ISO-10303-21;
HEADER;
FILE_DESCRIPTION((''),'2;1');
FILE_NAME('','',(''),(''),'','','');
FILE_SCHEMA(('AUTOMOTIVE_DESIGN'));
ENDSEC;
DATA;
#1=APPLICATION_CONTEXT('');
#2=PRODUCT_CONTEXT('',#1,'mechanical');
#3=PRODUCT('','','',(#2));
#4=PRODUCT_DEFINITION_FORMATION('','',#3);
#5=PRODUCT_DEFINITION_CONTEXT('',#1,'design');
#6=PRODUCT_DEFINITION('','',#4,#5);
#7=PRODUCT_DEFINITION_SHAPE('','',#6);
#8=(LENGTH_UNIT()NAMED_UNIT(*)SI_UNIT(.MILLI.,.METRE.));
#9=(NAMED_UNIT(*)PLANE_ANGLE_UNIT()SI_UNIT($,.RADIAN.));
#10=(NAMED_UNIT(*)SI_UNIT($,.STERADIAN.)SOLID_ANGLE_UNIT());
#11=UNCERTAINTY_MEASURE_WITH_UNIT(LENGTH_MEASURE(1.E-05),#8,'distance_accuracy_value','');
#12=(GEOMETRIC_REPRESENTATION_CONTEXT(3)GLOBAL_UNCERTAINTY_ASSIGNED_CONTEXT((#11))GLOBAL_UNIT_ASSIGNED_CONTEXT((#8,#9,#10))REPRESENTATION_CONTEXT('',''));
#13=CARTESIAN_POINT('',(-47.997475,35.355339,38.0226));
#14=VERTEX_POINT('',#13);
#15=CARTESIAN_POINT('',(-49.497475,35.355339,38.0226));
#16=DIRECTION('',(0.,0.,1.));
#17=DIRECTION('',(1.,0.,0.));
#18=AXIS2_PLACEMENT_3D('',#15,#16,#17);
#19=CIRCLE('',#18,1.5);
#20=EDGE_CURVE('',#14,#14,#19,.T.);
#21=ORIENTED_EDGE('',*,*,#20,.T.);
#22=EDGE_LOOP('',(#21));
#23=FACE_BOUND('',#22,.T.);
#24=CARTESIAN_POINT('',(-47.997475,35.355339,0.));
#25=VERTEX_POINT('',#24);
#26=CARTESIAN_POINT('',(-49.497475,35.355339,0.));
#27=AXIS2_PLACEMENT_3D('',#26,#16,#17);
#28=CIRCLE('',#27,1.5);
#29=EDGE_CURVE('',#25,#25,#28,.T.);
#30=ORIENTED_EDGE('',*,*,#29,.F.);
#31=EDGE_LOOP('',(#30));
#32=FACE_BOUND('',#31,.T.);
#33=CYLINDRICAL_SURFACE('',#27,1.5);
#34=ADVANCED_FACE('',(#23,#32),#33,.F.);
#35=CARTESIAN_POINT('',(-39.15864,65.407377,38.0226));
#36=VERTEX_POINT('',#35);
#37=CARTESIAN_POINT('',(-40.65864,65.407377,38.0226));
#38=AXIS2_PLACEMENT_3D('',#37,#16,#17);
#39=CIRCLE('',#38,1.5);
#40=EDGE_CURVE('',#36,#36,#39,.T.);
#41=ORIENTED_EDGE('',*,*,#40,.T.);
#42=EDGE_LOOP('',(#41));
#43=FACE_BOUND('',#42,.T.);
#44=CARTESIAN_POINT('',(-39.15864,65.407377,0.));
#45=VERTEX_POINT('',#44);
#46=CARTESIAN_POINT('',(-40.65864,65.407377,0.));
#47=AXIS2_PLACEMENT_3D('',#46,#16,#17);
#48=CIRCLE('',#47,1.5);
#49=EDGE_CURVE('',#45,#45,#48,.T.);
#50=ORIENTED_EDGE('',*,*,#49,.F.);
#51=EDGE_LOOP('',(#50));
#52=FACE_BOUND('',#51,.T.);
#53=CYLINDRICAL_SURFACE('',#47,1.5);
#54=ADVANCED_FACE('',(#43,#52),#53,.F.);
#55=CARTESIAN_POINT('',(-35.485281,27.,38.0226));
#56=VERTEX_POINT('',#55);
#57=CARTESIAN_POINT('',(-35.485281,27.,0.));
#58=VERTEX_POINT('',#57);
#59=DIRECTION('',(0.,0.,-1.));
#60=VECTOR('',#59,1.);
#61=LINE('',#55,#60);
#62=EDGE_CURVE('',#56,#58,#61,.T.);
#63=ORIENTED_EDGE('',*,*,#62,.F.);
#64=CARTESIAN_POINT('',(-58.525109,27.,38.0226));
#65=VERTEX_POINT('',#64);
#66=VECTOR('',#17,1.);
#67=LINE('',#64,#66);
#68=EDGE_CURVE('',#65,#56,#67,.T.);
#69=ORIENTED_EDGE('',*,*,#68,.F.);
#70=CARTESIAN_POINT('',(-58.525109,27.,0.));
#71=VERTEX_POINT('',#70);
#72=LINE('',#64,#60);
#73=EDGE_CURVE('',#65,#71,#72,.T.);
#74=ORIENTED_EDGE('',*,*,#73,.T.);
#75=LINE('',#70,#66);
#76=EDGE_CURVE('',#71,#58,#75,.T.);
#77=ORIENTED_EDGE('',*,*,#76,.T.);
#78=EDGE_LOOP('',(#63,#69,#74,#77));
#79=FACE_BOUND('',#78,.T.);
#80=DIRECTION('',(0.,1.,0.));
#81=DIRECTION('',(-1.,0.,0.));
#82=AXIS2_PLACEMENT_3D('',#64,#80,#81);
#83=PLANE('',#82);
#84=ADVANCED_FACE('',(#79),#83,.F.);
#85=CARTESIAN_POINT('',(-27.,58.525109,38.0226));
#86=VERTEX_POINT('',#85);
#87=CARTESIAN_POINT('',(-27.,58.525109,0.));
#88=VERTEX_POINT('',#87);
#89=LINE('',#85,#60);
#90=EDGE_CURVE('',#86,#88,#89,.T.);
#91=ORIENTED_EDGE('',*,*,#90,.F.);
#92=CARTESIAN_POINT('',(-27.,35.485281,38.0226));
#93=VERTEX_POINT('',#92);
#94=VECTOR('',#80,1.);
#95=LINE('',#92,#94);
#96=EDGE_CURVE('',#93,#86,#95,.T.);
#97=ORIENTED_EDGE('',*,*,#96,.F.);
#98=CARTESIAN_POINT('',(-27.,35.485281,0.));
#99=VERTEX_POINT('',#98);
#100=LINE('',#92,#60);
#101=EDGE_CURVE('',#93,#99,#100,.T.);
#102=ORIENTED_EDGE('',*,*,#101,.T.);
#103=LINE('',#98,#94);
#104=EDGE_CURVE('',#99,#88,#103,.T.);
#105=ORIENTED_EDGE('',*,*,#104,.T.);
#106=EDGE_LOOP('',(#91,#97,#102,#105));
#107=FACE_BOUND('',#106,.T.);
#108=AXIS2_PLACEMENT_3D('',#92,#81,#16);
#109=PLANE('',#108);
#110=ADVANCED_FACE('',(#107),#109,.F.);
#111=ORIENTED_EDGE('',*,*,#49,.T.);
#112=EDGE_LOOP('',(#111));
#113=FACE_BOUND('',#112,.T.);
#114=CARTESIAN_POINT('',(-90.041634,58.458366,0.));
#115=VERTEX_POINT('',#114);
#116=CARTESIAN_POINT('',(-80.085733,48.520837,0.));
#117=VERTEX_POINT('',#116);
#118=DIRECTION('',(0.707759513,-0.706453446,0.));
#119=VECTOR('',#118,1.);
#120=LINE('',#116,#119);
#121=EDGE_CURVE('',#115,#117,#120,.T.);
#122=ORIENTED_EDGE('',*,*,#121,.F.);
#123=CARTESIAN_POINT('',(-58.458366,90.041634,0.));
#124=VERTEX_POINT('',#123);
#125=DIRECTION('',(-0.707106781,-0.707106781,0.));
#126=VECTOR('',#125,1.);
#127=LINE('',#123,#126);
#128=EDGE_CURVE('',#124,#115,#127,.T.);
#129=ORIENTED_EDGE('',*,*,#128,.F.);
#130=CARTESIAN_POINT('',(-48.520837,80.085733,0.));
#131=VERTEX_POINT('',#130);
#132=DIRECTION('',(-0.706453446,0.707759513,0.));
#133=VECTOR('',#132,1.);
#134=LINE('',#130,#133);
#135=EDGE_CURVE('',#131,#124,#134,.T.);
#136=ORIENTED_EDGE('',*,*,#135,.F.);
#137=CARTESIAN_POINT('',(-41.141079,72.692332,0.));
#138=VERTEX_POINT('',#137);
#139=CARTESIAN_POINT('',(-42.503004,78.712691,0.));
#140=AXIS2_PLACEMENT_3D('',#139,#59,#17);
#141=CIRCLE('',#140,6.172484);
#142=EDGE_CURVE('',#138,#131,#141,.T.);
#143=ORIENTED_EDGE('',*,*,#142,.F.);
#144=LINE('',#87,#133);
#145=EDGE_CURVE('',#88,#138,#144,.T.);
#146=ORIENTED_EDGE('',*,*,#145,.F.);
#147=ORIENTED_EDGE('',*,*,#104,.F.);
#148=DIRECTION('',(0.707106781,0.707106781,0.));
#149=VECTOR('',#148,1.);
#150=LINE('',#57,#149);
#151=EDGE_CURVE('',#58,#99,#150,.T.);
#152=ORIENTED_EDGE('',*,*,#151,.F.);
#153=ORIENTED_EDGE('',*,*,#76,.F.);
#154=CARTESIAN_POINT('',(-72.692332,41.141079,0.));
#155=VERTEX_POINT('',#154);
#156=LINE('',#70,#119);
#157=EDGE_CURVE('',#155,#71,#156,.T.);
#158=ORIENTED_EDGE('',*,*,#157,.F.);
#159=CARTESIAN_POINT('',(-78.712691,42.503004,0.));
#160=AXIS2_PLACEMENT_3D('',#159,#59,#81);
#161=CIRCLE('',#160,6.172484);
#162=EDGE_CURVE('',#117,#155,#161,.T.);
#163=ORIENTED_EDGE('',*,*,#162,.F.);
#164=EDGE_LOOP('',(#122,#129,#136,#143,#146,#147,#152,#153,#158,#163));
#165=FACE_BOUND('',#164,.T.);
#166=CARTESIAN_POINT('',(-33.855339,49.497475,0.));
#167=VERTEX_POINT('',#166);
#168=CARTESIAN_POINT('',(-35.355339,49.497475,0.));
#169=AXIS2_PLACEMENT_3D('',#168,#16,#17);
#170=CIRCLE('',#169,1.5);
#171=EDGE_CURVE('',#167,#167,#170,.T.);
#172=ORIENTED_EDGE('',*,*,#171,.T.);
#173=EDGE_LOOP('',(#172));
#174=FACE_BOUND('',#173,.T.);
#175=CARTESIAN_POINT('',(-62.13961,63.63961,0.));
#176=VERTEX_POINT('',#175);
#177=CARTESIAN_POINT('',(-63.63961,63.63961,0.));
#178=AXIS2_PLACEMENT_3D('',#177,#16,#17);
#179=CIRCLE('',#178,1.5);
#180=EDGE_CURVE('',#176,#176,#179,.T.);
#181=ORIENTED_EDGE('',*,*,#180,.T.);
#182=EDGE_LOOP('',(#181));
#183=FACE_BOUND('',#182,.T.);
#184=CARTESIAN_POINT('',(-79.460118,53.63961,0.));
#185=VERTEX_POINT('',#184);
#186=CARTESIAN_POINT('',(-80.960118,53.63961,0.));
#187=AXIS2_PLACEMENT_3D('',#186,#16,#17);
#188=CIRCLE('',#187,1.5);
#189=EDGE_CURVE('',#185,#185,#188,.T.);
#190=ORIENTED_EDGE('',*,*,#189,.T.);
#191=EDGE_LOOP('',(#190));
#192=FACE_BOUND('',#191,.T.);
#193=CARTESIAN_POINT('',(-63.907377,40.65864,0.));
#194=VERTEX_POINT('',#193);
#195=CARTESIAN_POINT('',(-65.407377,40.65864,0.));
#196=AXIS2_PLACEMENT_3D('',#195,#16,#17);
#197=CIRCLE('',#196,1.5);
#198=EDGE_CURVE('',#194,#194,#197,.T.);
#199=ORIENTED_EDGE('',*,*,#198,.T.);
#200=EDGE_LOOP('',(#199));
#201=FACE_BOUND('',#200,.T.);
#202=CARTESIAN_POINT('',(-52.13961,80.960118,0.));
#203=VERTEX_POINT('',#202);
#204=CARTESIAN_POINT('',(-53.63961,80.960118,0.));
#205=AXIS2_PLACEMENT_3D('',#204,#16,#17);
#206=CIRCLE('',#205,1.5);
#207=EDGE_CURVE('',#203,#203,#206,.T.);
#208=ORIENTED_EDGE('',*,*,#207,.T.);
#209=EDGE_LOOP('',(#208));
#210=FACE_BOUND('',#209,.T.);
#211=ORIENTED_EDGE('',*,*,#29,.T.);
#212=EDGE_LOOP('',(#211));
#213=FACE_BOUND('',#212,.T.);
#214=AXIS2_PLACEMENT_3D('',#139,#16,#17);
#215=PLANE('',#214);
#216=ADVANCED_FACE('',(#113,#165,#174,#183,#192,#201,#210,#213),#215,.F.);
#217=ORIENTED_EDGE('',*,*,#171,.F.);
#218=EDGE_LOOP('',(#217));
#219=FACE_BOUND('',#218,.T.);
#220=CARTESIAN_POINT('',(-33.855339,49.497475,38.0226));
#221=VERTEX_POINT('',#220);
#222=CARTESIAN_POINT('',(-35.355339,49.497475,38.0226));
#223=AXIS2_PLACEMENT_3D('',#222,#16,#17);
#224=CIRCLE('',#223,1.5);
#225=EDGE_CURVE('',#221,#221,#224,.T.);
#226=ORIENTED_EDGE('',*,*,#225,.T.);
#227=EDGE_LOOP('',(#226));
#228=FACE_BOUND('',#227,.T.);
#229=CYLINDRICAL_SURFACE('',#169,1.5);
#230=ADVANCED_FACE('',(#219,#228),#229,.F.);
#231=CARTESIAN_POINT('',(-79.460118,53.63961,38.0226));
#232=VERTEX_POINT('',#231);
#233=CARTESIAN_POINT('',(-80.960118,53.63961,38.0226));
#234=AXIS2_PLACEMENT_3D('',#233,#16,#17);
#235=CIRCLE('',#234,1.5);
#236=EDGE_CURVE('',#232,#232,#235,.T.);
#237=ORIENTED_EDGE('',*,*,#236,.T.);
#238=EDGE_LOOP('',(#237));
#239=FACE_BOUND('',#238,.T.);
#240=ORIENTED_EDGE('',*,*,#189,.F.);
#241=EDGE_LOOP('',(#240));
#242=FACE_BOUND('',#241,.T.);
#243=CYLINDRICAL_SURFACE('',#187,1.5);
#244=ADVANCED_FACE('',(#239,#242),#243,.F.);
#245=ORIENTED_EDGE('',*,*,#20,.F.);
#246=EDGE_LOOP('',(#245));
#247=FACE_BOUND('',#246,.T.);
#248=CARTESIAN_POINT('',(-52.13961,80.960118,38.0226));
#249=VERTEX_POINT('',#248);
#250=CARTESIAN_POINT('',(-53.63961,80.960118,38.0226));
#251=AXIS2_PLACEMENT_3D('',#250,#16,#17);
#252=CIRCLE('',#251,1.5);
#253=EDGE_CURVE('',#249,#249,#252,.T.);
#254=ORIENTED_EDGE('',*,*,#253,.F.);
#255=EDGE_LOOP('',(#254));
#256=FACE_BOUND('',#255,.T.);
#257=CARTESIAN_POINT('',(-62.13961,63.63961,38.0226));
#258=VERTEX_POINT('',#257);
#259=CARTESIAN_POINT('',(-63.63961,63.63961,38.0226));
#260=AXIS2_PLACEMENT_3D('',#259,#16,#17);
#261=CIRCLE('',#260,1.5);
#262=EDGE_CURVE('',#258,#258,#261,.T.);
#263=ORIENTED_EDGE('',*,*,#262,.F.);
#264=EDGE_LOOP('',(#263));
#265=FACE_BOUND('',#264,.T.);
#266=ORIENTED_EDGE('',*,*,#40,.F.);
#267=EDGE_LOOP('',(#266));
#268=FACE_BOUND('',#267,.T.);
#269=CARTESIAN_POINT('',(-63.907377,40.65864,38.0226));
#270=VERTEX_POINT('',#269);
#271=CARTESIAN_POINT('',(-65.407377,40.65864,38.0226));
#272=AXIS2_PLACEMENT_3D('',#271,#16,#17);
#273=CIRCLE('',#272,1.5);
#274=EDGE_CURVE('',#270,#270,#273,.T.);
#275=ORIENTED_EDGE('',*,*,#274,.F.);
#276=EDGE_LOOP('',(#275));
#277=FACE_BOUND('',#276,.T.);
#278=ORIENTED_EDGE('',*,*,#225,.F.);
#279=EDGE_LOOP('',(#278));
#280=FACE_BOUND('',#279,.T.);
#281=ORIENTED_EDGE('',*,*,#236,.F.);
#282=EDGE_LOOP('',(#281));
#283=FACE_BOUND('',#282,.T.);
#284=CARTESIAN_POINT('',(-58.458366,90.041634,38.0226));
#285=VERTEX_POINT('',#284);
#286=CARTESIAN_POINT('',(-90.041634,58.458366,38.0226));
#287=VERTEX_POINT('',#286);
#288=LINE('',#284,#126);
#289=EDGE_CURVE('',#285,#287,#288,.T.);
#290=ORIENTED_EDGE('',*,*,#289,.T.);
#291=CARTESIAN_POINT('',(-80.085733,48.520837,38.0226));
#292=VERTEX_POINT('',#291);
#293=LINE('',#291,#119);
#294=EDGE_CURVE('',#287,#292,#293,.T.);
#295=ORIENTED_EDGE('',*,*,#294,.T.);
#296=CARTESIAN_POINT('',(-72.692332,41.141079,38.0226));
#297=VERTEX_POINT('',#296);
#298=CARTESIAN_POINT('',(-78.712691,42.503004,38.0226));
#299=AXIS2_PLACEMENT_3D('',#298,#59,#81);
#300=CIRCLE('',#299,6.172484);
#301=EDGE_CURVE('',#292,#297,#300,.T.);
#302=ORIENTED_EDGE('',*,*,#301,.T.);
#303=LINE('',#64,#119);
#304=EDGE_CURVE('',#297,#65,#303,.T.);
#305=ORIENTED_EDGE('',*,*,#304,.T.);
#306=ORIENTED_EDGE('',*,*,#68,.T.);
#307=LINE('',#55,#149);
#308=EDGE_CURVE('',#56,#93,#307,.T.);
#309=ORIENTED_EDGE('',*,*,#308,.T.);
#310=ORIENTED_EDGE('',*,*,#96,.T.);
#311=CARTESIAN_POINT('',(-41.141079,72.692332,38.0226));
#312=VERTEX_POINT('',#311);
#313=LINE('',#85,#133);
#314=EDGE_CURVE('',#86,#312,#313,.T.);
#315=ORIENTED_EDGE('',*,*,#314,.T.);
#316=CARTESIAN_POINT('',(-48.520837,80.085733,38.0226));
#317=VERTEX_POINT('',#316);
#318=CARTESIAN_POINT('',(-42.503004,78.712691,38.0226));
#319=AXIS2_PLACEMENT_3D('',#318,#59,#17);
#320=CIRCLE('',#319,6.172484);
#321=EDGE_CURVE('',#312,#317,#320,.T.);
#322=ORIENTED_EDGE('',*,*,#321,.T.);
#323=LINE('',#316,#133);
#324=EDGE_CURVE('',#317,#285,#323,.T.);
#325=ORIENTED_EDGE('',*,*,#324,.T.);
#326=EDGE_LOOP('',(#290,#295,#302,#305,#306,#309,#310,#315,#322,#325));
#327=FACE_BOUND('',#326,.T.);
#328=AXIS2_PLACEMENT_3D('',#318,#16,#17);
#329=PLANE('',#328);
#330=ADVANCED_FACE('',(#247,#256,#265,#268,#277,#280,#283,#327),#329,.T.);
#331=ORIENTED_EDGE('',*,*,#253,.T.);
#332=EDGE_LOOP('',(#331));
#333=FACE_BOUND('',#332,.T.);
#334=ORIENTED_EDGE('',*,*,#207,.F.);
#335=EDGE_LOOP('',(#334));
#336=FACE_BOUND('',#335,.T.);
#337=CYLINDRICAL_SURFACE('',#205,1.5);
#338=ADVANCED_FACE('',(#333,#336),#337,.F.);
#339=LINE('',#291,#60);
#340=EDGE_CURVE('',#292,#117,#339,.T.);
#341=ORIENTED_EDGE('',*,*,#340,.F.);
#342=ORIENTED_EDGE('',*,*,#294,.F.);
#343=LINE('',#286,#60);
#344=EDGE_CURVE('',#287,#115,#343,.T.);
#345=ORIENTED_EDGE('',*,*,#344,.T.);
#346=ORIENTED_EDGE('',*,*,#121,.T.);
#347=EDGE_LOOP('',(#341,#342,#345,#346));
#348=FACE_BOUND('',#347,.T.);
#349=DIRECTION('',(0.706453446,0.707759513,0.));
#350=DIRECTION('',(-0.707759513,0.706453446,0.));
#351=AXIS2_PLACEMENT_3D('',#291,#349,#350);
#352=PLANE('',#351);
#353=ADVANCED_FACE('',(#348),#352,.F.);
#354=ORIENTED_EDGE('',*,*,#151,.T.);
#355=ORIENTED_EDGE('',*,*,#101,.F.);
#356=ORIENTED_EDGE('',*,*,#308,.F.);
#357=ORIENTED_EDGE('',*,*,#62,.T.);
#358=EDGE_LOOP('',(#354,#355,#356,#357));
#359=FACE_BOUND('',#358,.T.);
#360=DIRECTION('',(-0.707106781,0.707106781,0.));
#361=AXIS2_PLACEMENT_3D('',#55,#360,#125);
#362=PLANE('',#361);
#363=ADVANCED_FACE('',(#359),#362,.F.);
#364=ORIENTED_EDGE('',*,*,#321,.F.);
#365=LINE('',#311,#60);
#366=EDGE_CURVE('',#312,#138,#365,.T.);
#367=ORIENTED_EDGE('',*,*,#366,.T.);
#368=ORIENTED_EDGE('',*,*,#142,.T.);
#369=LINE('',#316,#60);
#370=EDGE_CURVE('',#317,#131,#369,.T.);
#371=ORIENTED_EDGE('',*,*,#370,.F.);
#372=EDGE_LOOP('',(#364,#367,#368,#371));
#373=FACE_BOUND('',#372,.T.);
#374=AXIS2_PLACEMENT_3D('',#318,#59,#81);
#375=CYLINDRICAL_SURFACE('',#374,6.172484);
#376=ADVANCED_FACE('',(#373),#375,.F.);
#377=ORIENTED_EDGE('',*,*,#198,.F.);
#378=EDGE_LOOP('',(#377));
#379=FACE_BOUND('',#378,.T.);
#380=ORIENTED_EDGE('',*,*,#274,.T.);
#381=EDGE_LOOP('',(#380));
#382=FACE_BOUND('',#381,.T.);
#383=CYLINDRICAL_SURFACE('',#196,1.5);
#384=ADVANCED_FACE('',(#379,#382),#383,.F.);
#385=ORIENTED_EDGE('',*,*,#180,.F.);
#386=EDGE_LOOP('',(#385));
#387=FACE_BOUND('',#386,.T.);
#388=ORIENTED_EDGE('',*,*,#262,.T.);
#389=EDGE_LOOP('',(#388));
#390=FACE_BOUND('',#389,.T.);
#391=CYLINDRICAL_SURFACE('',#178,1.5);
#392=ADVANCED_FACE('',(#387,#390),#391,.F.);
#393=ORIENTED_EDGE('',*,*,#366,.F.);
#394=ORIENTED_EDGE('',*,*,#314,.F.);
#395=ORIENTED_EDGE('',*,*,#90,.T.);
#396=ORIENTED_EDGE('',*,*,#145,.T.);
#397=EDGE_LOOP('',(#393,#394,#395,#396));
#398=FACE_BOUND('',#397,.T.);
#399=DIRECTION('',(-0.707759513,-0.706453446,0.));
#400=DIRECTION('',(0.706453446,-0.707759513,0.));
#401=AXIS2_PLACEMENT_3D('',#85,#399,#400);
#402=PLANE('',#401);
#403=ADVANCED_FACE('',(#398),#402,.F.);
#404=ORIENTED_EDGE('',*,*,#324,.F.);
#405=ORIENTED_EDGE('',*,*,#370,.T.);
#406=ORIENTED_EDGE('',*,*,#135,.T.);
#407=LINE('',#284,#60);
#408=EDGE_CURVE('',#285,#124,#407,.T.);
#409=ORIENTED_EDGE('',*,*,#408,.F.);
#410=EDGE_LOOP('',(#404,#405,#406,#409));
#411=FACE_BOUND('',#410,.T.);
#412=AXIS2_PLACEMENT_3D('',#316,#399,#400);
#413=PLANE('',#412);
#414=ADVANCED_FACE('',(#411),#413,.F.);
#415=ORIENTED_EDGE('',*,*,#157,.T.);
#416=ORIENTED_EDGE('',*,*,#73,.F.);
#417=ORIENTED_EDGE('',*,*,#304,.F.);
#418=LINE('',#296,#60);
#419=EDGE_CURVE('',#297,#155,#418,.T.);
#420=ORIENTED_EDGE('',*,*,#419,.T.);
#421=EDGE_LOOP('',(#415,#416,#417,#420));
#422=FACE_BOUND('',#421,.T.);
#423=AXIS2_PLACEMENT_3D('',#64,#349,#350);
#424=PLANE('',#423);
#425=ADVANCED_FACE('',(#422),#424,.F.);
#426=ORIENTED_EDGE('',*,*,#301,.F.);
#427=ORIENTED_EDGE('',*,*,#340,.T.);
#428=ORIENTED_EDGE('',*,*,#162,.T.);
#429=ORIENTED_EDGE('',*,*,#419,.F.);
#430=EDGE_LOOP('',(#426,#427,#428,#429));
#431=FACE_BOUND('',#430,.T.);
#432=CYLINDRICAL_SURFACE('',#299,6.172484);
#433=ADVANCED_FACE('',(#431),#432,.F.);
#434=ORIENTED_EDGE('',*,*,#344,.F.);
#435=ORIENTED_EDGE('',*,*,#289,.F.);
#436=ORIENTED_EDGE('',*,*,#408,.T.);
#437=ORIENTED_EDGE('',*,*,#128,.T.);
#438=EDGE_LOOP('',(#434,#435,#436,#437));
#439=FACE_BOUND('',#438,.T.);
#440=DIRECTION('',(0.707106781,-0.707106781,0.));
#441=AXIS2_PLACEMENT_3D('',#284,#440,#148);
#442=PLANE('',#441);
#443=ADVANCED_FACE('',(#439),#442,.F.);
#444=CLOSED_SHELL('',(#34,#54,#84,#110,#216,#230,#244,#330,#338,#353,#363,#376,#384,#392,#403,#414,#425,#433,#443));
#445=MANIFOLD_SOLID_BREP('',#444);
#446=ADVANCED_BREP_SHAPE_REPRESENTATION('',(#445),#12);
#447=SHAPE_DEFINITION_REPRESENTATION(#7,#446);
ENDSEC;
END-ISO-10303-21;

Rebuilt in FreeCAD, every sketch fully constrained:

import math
import FreeCAD as App
import Part
import Sketcher

V = App.Vector
Q = App.Units.Quantity

doc = App.newDocument("Part")
body = doc.addObject("PartDesign::Body", "Body")

# Sketch on XY plane
sketch1 = body.newObject("Sketcher::SketchObject", "Sketch")
sketch1.AttachmentSupport = (doc.getObject("XY_Plane"), [""])
sketch1.MapMode = "FlatFace"
sketch1.addGeometry([
    Part.LineSegment(V(-58, 90, 0), V(-90, 58, 0)),  # 0
    Part.LineSegment(V(-90, 58, 0), V(-80, 49, 0)),  # 1
    Part.ArcOfCircle(Part.Circle(V(-79, 43, 0), V(0, 0, 1), 6), math.radians(-13), math.radians(103)),  # 2
    Part.LineSegment(V(-73, 41, 0), V(-59, 27, 0)),  # 3
    Part.LineSegment(V(-59, 27, 0), V(-35, 27, 0)),  # 4
    Part.LineSegment(V(-35, 27, 0), V(-27, 35, 0)),  # 5
    Part.LineSegment(V(-27, 35, 0), V(-27, 59, 0)),  # 6
    Part.LineSegment(V(-27, 59, 0), V(-41, 73, 0)),  # 7
    Part.ArcOfCircle(Part.Circle(V(-43, 79, 0), V(0, 0, 1), 6), math.radians(167), math.radians(283)),  # 8
    Part.LineSegment(V(-49, 80, 0), V(-58, 90, 0)),  # 9
], False)
sketch1.addConstraint([
    Sketcher.Constraint("Coincident", 0, 2, 1, 1),
    Sketcher.Constraint("Coincident", 1, 2, 2, 2),
    Sketcher.Constraint("Coincident", 2, 1, 3, 1),
    Sketcher.Constraint("Coincident", 3, 2, 4, 1),
    Sketcher.Constraint("Coincident", 4, 2, 5, 1),
    Sketcher.Constraint("Coincident", 5, 2, 6, 1),
    Sketcher.Constraint("Coincident", 6, 2, 7, 1),
    Sketcher.Constraint("Coincident", 7, 2, 8, 2),
    Sketcher.Constraint("Coincident", 8, 1, 9, 1),
    Sketcher.Constraint("Coincident", 9, 2, 0, 1),
    Sketcher.Constraint("Horizontal", 4),
    Sketcher.Constraint("Vertical", 6),
    Sketcher.Constraint("Equal", 2, 8),
    Sketcher.Constraint("Parallel", 1, 3),
    Sketcher.Constraint("Parallel", 0, 5),
    Sketcher.Constraint("Parallel", 7, 9),
    Sketcher.Constraint("Equal", 4, 6),
    Sketcher.Constraint("Equal", 3, 7),
    Sketcher.Constraint("Equal", 1, 9),
    Sketcher.Constraint("Angle", 0, Q("-135 deg")),
    Sketcher.Constraint("Distance", 5, 12.0),
    Sketcher.Constraint("DistanceY", -1, 1, 3, 2, 27.0),
    Sketcher.Constraint("DistanceX", 5, 2, -1, 1, 27.0),
    Sketcher.Constraint("Distance", 3, 20.017001),
    Sketcher.Constraint("Radius", 2, 6.172484),
    Sketcher.Constraint("DistanceX", 0, 2, 1, 2, 9.955901),
    Sketcher.Constraint("DistanceX", 1, 2, 2, 1, 7.393401),
    Sketcher.Constraint("DistanceY", 7, 2, 8, 1, 7.393401),
    Sketcher.Constraint("DistanceY", 8, 1, 9, 2, 9.955901),
    Sketcher.Constraint("DistanceX", 4, 1, 4, 2, 23.039828),
    Sketcher.Constraint("DistanceX", 2, 3, -1, 1, 78.712691),
    Sketcher.Constraint("DistanceX", 2, 1, -1, 1, 72.692332),
])
pad1 = body.newObject("PartDesign::Pad", "Pad")
pad1.Profile = sketch1
pad1.Length = 38.0226

# Sketch on XY plane
sketch2 = body.newObject("Sketcher::SketchObject", "Sketch001")
sketch2.AttachmentSupport = (doc.getObject("XY_Plane"), [""])
sketch2.MapMode = "FlatFace"
sketch2.AttachmentOffset = App.Placement(V(0, 0, 38.0226), App.Rotation())
sketch2.addGeometry([
    Part.Circle(V(-63.6, 63.6, 0), V(0, 0, 1), 1.5),  # 0
    Part.Circle(V(-81, 53.6, 0), V(0, 0, 1), 1.5),  # 1
    Part.Circle(V(-53.6, 81, 0), V(0, 0, 1), 1.5),  # 2
    Part.Circle(V(-40.7, 65.4, 0), V(0, 0, 1), 1.5),  # 3
    Part.Circle(V(-65.4, 40.7, 0), V(0, 0, 1), 1.5),  # 4
    Part.Circle(V(-49.5, 35.4, 0), V(0, 0, 1), 1.5),  # 5
    Part.Circle(V(-35.4, 49.5, 0), V(0, 0, 1), 1.5),  # 6
], False)
sketch2.addConstraint([
    Sketcher.Constraint("Equal", 0, 1),
    Sketcher.Constraint("Equal", 1, 2),
    Sketcher.Constraint("Equal", 2, 3),
    Sketcher.Constraint("Equal", 3, 4),
    Sketcher.Constraint("Equal", 4, 5),
    Sketcher.Constraint("Equal", 5, 6),
    Sketcher.Constraint("Diameter", 0, 3.0),
    Sketcher.Constraint("DistanceY", 1, 3, 0, 3, 10.0),
    Sketcher.Constraint("DistanceX", 0, 3, 2, 3, 10.0),
    Sketcher.Constraint("DistanceY", 5, 3, 4, 3, 5.303301),
    Sketcher.Constraint("DistanceX", 3, 3, 6, 3, 5.303301),
    Sketcher.Constraint("DistanceX", 0, 3, -1, 1, 63.63961),
    Sketcher.Constraint("DistanceY", -1, 1, 0, 3, 63.63961),
    Sketcher.Constraint("DistanceX", 1, 3, -1, 1, 80.960118),
    Sketcher.Constraint("DistanceY", -1, 1, 2, 3, 80.960118),
    Sketcher.Constraint("DistanceX", 3, 3, -1, 1, 40.65864),
    Sketcher.Constraint("DistanceY", -1, 1, 4, 3, 40.65864),
    Sketcher.Constraint("DistanceY", 3, 3, 2, 3, 15.552741),
    Sketcher.Constraint("DistanceX", 1, 3, 4, 3, 15.552741),
    Sketcher.Constraint("DistanceX", 5, 3, -1, 1, 49.497475),
    Sketcher.Constraint("DistanceY", -1, 1, 6, 3, 49.497475),
])
pocket1 = body.newObject("PartDesign::Pocket", "Pocket")
pocket1.Profile = sketch2
pocket1.Type = "ThroughAll"

doc.recompute()
